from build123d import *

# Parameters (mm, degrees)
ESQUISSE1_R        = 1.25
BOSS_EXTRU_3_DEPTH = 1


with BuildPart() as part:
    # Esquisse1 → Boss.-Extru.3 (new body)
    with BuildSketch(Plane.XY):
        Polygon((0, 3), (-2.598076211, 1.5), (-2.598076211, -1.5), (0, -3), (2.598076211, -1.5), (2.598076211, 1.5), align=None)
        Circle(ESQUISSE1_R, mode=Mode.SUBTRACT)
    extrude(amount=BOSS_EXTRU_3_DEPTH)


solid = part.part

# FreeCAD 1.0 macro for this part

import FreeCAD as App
import Part
import Sketcher
Q = App.Units.Quantity


def add_polygon(sketch, points):
    """Adds a closed chain of lines whose ends are joined by coincident constraints."""
    first, n = sketch.GeometryCount, len(points)
    for a, b in zip(points, points[1:] + points[:1]):
        sketch.addGeometry(Part.LineSegment(App.Vector(*a, 0), App.Vector(*b, 0)), False)
    for i in range(n):
        sketch.addConstraint(Sketcher.Constraint("Coincident", first + i, 2, first + (i + 1) % n, 1))

doc = App.newDocument("Part")
body = doc.addObject("PartDesign::Body", "Body")

sketch1 = body.newObject("Sketcher::SketchObject", "Sketch")
sketch1.AttachmentSupport = (doc.getObject("XY_Plane"), [""])
sketch1.MapMode = "FlatFace"
add_polygon(sketch1, [(0, 3), (-2.6, 1.5), (-2.6, -1.5), (0, -3), (2.6, -1.5), (2.6, 1.5)])
sketch1.addGeometry(Part.Circle(App.Vector(0, 0, 0), App.Vector(0, 0, 1), 1.2), False)
sketch1.addConstraint([
    Sketcher.Constraint("Vertical", 1),
    Sketcher.Constraint("Vertical", 4),
    Sketcher.Constraint("Coincident", 6, 3, -1, 1),
    Sketcher.Constraint("Symmetric", 0, 2, 3, 2, -1, 1),
    Sketcher.Constraint("Symmetric", 2, 2, 5, 2, -1, 1),
    Sketcher.Constraint("PointOnObject", 2, 2, -2),
    Sketcher.Constraint("Parallel", 2, 5),
    Sketcher.Constraint("Horizontal", 1, 2, 3, 2),
    Sketcher.Constraint("Diameter", 6, 2.5),
    Sketcher.Constraint("DistanceY", 1, 2, 1, 1, 3.0),
    Sketcher.Constraint("Angle", 0, Q("-150 deg")),
    Sketcher.Constraint("Distance", 0, 3.0),
])
pad1 = body.newObject("PartDesign::Pad", "Pad")
pad1.Profile = sketch1
pad1.Length = 1

doc.recompute()
